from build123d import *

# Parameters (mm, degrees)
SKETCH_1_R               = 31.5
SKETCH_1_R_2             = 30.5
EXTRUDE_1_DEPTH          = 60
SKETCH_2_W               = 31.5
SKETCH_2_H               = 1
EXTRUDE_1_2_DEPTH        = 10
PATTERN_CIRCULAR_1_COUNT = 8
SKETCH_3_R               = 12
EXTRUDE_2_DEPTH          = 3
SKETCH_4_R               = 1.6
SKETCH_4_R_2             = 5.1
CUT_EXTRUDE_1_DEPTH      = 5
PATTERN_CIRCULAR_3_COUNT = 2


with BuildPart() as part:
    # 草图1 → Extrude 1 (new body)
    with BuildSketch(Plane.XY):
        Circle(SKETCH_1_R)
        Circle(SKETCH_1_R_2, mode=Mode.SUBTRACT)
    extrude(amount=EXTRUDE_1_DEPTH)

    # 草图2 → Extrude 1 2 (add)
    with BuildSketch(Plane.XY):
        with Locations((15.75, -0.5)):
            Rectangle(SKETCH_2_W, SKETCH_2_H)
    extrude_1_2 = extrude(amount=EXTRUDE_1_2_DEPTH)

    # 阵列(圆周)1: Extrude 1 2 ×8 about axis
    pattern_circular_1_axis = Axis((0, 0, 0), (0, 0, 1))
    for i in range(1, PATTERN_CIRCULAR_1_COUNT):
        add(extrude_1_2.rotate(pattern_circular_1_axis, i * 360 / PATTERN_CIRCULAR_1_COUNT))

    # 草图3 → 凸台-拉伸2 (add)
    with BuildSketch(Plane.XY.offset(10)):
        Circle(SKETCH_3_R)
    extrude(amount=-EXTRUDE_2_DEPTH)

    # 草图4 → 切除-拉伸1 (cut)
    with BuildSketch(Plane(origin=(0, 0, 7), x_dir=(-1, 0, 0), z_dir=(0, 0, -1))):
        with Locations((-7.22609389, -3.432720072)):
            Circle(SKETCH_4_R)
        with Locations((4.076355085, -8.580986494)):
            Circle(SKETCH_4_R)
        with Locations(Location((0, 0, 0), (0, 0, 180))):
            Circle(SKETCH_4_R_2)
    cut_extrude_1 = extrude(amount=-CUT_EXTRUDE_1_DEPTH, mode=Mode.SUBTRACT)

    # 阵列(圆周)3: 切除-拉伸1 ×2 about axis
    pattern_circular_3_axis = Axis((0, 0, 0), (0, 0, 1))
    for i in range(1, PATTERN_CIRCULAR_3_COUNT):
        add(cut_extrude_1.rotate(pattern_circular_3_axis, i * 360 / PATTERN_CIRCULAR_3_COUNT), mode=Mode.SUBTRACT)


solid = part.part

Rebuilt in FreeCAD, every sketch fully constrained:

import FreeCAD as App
import Part
import Sketcher


def add_polygon(sketch, points):
    """Adds a closed chain of lines whose ends are joined by coincident constraints."""
    first, n = sketch.GeometryCount, len(points)
    for a, b in zip(points, points[1:] + points[:1]):
        sketch.addGeometry(Part.LineSegment(App.Vector(*a, 0), App.Vector(*b, 0)), False)
    for i in range(n):
        sketch.addConstraint(Sketcher.Constraint("Coincident", first + i, 2, first + (i + 1) % n, 1))

doc = App.newDocument("Part")
params = doc.addObject("Spreadsheet::Sheet", "Params")
for row, (alias, value) in enumerate([
    ("sketch1_diameter", "63 mm"),
    ("sketch1_diameter2", "61 mm"),
    ("pad1_length", "60 mm"),
    ("sketch2_height", "1 mm"),
    ("sketch2_width", "31.5 mm"),
    ("pad2_length", "10 mm"),
    ("sketch3_diameter", "24 mm"),
    ("pad3_length", "3 mm"),
    ("sketch4_diameter", "3.2 mm"),
    ("sketch4_diameter2", "10.2 mm"),
    ("pocket1_length", "5 mm"),
], start=1):
    params.set(f"A{row}", alias)
    params.set(f"B{row}", "=" + value)
    params.setAlias(f"B{row}", alias)

body = doc.addObject("PartDesign::Body", "Body")

sketch1 = body.newObject("Sketcher::SketchObject", "Sketch")
sketch1.AttachmentSupport = (doc.getObject("XY_Plane"), [""])
sketch1.MapMode = "FlatFace"
sketch1.addGeometry([
    Part.Circle(App.Vector(0, 0, 0), App.Vector(0, 0, 1), 31.5),
    Part.Circle(App.Vector(0, 0, 0), App.Vector(0, 0, 1), 30.5),
], False)
sketch1.addConstraint([
    Sketcher.Constraint("Coincident", 0, 3, -1, 1),
    Sketcher.Constraint("Coincident", 1, 3, -1, 1),
    Sketcher.Constraint("Diameter", 0, 63.0),
    Sketcher.Constraint("Diameter", 1, 61.0),
])
sketch1.setExpression("Constraints[2]", "Params.sketch1_diameter")
sketch1.setExpression("Constraints[3]", "Params.sketch1_diameter2")
pad1 = body.newObject("PartDesign::Pad", "Pad")
pad1.Profile = sketch1
pad1.setExpression("Length", "Params.pad1_length")

sketch2 = body.newObject("Sketcher::SketchObject", "Sketch001")
sketch2.AttachmentSupport = (doc.getObject("XY_Plane"), [""])
sketch2.MapMode = "FlatFace"
add_polygon(sketch2, [(0, 0), (0, -1), (31.5, -1), (31.5, 0)])
sketch2.addConstraint([
    Sketcher.Constraint("Vertical", 0),
    Sketcher.Constraint("Horizontal", 1),
    Sketcher.Constraint("Vertical", 2),
    Sketcher.Constraint("Horizontal", 3),
    Sketcher.Constraint("Coincident", 3, 2, -1, 1),
    Sketcher.Constraint("DistanceY", 0, 2, 0, 1, 1.0),
    Sketcher.Constraint("DistanceX", 1, 1, 1, 2, 31.5),
])
sketch2.setExpression("Constraints[9]", "Params.sketch2_height")
sketch2.setExpression("Constraints[10]", "Params.sketch2_width")
pad2 = body.newObject("PartDesign::Pad", "Pad001")
pad2.Profile = sketch2
pad2.setExpression("Length", "Params.pad2_length")
doc.recompute()

polarpattern = body.newObject("PartDesign::PolarPattern", "PolarPattern")
polarpattern.Originals = [pad2]
polarpattern.Axis = (doc.getObject("Z_Axis"), [""])
polarpattern.Angle = 360
polarpattern.Occurrences = 8
body.Tip = polarpattern

sketch3 = body.newObject("Sketcher::SketchObject", "Sketch002")
sketch3.AttachmentSupport = (doc.getObject("XY_Plane"), [""])
sketch3.MapMode = "FlatFace"
sketch3.AttachmentOffset = App.Placement(App.Vector(0, 0, 10), App.Rotation())
sketch3.addGeometry(Part.Circle(App.Vector(0, 0, 0), App.Vector(0, 0, 1), 12), False)
sketch3.addConstraint([
    Sketcher.Constraint("Coincident", 0, 3, -1, 1),
    Sketcher.Constraint("Diameter", 0, 24.0),
])
sketch3.setExpression("Constraints[1]", "Params.sketch3_diameter")
pad3 = body.newObject("PartDesign::Pad", "Pad002")
pad3.Profile = sketch3
pad3.setExpression("Length", "Params.pad3_length")
pad3.Reversed = True

sketch4 = body.newObject("Sketcher::SketchObject", "Sketch003")
sketch4.AttachmentSupport = (doc.getObject("XY_Plane"), [""])
sketch4.MapMode = "FlatFace"
sketch4.AttachmentOffset = App.Placement(App.Vector(0, 0, 7), App.Rotation())
sketch4.addGeometry([
    Part.Circle(App.Vector(7.226094, -3.43272, 0), App.Vector(0, 0, 1), 1.6),
    Part.Circle(App.Vector(-4.076355, -8.580986, 0), App.Vector(0, 0, 1), 1.6),
    Part.Circle(App.Vector(0, 0, 0), App.Vector(0, 0, 1), 5.1),
], False)
sketch4.addConstraint([
    Sketcher.Constraint("Coincident", 2, 3, -1, 1),
    Sketcher.Constraint("Equal", 0, 1),
    Sketcher.Constraint("Diameter", 0, 3.2),
    Sketcher.Constraint("Diameter", 2, 10.2),
    Sketcher.Constraint("DistanceY", 0, 3, -1, 1, 3.43272),
    Sketcher.Constraint("DistanceX", 1, 3, 0, 3, 11.302449),
    Sketcher.Constraint("DistanceX", -1, 1, 0, 3, 7.226094),
    Sketcher.Constraint("DistanceY", 1, 3, -1, 1, 8.580986),
])
sketch4.setExpression("Constraints[2]", "Params.sketch4_diameter")
sketch4.setExpression("Constraints[3]", "Params.sketch4_diameter2")
pocket1 = body.newObject("PartDesign::Pocket", "Pocket")
pocket1.Profile = sketch4
pocket1.setExpression("Length", "Params.pocket1_length")
pocket1.Reversed = True
doc.recompute()

polarpattern2 = body.newObject("PartDesign::PolarPattern", "PolarPattern001")
polarpattern2.Originals = [pocket1]
polarpattern2.Axis = (doc.getObject("Z_Axis"), [""])
polarpattern2.Angle = 360
polarpattern2.Occurrences = 2
body.Tip = polarpattern2

doc.recompute()
